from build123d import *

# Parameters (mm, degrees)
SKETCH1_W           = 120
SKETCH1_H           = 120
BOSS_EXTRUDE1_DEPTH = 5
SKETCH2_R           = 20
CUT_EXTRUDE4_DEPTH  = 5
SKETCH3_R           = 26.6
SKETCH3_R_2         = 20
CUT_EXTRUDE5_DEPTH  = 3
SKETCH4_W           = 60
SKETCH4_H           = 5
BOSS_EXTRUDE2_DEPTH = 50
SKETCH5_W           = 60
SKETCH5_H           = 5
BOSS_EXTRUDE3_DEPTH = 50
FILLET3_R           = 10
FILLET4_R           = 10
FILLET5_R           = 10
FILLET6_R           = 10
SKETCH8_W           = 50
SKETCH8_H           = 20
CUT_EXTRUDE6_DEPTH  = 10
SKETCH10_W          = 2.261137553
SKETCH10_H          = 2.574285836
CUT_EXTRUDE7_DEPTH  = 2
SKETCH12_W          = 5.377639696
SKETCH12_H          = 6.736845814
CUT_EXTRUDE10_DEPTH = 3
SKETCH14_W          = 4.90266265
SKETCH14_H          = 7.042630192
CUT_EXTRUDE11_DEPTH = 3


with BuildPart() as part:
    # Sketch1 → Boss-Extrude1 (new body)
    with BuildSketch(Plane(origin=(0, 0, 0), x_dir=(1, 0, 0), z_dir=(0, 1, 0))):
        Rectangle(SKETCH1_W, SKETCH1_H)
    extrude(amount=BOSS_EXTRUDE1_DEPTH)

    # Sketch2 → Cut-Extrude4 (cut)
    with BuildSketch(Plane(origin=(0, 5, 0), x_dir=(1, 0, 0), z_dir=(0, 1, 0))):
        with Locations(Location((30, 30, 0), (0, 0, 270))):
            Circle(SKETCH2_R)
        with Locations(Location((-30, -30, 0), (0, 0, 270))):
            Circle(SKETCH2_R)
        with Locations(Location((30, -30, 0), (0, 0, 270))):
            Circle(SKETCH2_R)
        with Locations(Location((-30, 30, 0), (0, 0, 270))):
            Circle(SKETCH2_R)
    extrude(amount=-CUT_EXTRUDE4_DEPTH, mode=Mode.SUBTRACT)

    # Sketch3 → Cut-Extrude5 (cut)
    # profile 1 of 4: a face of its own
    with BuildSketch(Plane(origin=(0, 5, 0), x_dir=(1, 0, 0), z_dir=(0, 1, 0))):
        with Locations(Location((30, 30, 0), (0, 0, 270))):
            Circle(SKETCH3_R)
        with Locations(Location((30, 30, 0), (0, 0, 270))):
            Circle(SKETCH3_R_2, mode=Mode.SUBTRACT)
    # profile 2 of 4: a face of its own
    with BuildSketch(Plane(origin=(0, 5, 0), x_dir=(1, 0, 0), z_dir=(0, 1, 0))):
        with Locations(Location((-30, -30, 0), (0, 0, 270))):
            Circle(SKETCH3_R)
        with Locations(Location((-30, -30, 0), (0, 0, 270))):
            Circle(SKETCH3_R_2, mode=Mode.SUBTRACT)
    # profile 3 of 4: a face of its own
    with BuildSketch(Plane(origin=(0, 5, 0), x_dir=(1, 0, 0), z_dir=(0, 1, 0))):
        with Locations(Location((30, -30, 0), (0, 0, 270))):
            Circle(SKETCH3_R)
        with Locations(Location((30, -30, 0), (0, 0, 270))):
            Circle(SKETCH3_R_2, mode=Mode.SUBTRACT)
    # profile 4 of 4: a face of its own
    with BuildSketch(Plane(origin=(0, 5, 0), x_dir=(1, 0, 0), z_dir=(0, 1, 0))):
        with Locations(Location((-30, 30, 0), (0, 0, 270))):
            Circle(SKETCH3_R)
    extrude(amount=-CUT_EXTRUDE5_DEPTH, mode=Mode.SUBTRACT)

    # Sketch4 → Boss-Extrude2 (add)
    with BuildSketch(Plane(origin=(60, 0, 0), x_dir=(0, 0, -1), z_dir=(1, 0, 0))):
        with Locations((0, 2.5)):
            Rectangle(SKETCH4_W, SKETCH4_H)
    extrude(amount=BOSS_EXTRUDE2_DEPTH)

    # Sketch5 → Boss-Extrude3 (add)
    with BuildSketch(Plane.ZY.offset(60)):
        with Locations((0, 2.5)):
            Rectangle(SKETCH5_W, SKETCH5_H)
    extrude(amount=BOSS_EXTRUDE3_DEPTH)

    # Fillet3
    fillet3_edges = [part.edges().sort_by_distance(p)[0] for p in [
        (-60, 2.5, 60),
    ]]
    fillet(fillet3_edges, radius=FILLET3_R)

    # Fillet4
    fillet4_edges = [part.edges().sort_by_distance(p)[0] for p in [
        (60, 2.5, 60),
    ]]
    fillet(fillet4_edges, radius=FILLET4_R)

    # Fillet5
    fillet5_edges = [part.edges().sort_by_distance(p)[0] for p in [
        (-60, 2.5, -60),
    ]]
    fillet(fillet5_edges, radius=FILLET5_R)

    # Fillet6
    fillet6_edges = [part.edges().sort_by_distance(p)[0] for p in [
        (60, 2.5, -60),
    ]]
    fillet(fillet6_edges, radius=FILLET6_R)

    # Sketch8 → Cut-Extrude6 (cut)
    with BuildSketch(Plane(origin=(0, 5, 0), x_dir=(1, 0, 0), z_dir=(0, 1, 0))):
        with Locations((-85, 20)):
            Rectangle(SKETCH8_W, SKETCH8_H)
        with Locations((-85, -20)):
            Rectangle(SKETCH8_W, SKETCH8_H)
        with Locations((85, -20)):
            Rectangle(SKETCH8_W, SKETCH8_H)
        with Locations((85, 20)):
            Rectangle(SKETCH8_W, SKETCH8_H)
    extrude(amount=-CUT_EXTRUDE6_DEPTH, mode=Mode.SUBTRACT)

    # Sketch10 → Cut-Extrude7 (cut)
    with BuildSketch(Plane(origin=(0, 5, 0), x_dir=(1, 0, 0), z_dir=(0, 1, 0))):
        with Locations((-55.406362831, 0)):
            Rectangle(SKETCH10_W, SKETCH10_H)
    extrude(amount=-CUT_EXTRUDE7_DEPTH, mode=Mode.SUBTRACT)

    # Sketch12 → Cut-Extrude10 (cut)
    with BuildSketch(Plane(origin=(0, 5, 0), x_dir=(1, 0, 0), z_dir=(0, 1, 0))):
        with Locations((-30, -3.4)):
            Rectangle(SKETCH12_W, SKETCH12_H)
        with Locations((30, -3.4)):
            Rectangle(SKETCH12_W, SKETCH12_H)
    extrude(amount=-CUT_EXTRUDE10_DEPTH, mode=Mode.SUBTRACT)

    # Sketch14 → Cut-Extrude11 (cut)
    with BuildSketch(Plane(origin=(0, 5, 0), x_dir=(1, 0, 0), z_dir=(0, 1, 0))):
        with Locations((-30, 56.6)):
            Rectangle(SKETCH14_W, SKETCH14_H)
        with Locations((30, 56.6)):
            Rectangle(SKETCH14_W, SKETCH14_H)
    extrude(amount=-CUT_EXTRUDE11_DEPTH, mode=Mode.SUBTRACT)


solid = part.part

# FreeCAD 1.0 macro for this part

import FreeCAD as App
import Part
import Sketcher


def edges_at(feature, points):
    """Names of the edges that pass closest to the given points."""
    edges = feature.Shape.Edges
    near = lambda p: min(range(len(edges)), key=lambda i: edges[i].distToShape(Part.Vertex(*p))[0])
    return sorted({f"Edge{near(p) + 1}" for p in points})

doc = App.newDocument("Part")
body = doc.addObject("PartDesign::Body", "Body")

sketch1 = body.newObject("Sketcher::SketchObject", "Sketch")
sketch1.AttachmentSupport = (doc.getObject("XZ_Plane"), [""])
sketch1.MapMode = "FlatFace"
sketch1.addGeometry([
    Part.LineSegment(App.Vector(-60, -60, 0), App.Vector(-60, 60, 0)),
    Part.LineSegment(App.Vector(-60, 60, 0), App.Vector(60, 60, 0)),
    Part.LineSegment(App.Vector(60, 60, 0), App.Vector(60, -60, 0)),
    Part.LineSegment(App.Vector(60, -60, 0), App.Vector(-60, -60, 0)),
], False)
sketch1.addConstraint([
    Sketcher.Constraint("Coincident", 0, 2, 1, 1),
    Sketcher.Constraint("Coincident", 1, 2, 2, 1),
    Sketcher.Constraint("Coincident", 2, 2, 3, 1),
    Sketcher.Constraint("Coincident", 3, 2, 0, 1),
    Sketcher.Constraint("Vertical", 0),
    Sketcher.Constraint("Horizontal", 1),
    Sketcher.Constraint("Vertical", 2),
    Sketcher.Constraint("Horizontal", 3),
    Sketcher.Constraint("Symmetric", 0, 2, 2, 2, -1, 1),
    Sketcher.Constraint("Equal", 3, 0),
    Sketcher.Constraint("DistanceX", 1, 1, 1, 2, 120.0),
])
pad1 = body.newObject("PartDesign::Pad", "Pad")
pad1.Profile = sketch1
pad1.Length = 5
pad1.Reversed = True

sketch2 = body.newObject("Sketcher::SketchObject", "Sketch001")
sketch2.AttachmentSupport = (doc.getObject("XZ_Plane"), [""])
sketch2.MapMode = "FlatFace"
sketch2.AttachmentOffset = App.Placement(App.Vector(0, 0, -5), App.Rotation())
sketch2.addGeometry([
    Part.Circle(App.Vector(30, -30, 0), App.Vector(0, 0, 1), 20),
    Part.Circle(App.Vector(-30, 30, 0), App.Vector(0, 0, 1), 20),
    Part.Circle(App.Vector(30, 30, 0), App.Vector(0, 0, 1), 20),
    Part.Circle(App.Vector(-30, -30, 0), App.Vector(0, 0, 1), 20),
], False)
sketch2.addConstraint([
    Sketcher.Constraint("Equal", 0, 1),
    Sketcher.Constraint("Equal", 1, 2),
    Sketcher.Constraint("Equal", 2, 3),
    Sketcher.Constraint("Symmetric", 0, 3, 1, 3, -1, 1),
    Sketcher.Constraint("Symmetric", 2, 3, 3, 3, -1, 1),
    Sketcher.Constraint("Symmetric", 1, 3, 2, 3, -2),
    Sketcher.Constraint("Diameter", 0, 40.0),
    Sketcher.Constraint("DistanceX", -1, 1, 0, 3, 30.0),
    Sketcher.Constraint("DistanceY", 0, 3, -1, 1, 30.0),
])
pocket1 = body.newObject("PartDesign::Pocket", "Pocket")
pocket1.Profile = sketch2
pocket1.Length = 5
pocket1.Reversed = True

sketch3 = body.newObject("Sketcher::SketchObject", "Sketch002")
sketch3.AttachmentSupport = (doc.getObject("XZ_Plane"), [""])
sketch3.MapMode = "FlatFace"
sketch3.AttachmentOffset = App.Placement(App.Vector(0, 0, -5), App.Rotation())
sketch3.addGeometry([
    Part.Circle(App.Vector(30, -30, 0), App.Vector(0, 0, 1), 27),
    Part.Circle(App.Vector(30, -30, 0), App.Vector(0, 0, 1), 20),
    Part.Circle(App.Vector(-30, 30, 0), App.Vector(0, 0, 1), 27),
    Part.Circle(App.Vector(-30, 30, 0), App.Vector(0, 0, 1), 20),
    Part.Circle(App.Vector(30, 30, 0), App.Vector(0, 0, 1), 27),
    Part.Circle(App.Vector(30, 30, 0), App.Vector(0, 0, 1), 20),
    Part.Circle(App.Vector(-30, -30, 0), App.Vector(0, 0, 1), 27),
], False)
sketch3.addConstraint([
    Sketcher.Constraint("Coincident", 1, 3, 0, 3),
    Sketcher.Constraint("Coincident", 3, 3, 2, 3),
    Sketcher.Constraint("Coincident", 5, 3, 4, 3),
    Sketcher.Constraint("Equal", 0, 2),
    Sketcher.Constraint("Equal", 1, 3),
    Sketcher.Constraint("Equal", 2, 4),
    Sketcher.Constraint("Equal", 3, 5),
    Sketcher.Constraint("Equal", 4, 6),
    Sketcher.Constraint("Symmetric", 0, 3, 2, 3, -1, 1),
    Sketcher.Constraint("Symmetric", 4, 3, 6, 3, -1, 1),
    Sketcher.Constraint("Symmetric", 2, 3, 4, 3, -2),
    Sketcher.Constraint("Diameter", 1, 40.0),
    Sketcher.Constraint("Diameter", 0, 53.2),
    Sketcher.Constraint("DistanceX", -1, 1, 0, 3, 30.0),
    Sketcher.Constraint("DistanceY", 0, 3, -1, 1, 30.0),
])
pocket2 = body.newObject("PartDesign::Pocket", "Pocket001")
pocket2.Profile = sketch3
pocket2.Length = 3
pocket2.Reversed = True

sketch4 = body.newObject("Sketcher::SketchObject", "Sketch003")
sketch4.AttachmentSupport = (doc.getObject("YZ_Plane"), [""])
sketch4.MapMode = "FlatFace"
sketch4.AttachmentOffset = App.Placement(App.Vector(0, 0, 60), App.Rotation())
sketch4.addGeometry([
    Part.LineSegment(App.Vector(5, 30, 0), App.Vector(0, 30, 0)),
    Part.LineSegment(App.Vector(0, 30, 0), App.Vector(0, -30, 0)),
    Part.LineSegment(App.Vector(0, -30, 0), App.Vector(5, -30, 0)),
    Part.LineSegment(App.Vector(5, -30, 0), App.Vector(5, 30, 0)),
], False)
sketch4.addConstraint([
    Sketcher.Constraint("Coincident", 0, 2, 1, 1),
    Sketcher.Constraint("Coincident", 1, 2, 2, 1),
    Sketcher.Constraint("Coincident", 2, 2, 3, 1),
    Sketcher.Constraint("Coincident", 3, 2, 0, 1),
    Sketcher.Constraint("Horizontal", 0),
    Sketcher.Constraint("Vertical", 1),
    Sketcher.Constraint("Horizontal", 2),
    Sketcher.Constraint("Vertical", 3),
    Sketcher.Constraint("Symmetric", 0, 2, 1, 2, -1, 1),
    Sketcher.Constraint("DistanceX", 0, 2, 0, 1, 5.0),
    Sketcher.Constraint("DistanceY", 1, 2, 1, 1, 60.0),
])
pad2 = body.newObject("PartDesign::Pad", "Pad001")
pad2.Profile = sketch4
pad2.Length = 50

sketch5 = body.newObject("Sketcher::SketchObject", "Sketch004")
sketch5.AttachmentSupport = (doc.getObject("YZ_Plane"), [""])
sketch5.MapMode = "FlatFace"
sketch5.AttachmentOffset = App.Placement(App.Vector(0, 0, -60), App.Rotation())
sketch5.addGeometry([
    Part.LineSegment(App.Vector(5, -30, 0), App.Vector(0, -30, 0)),
    Part.LineSegment(App.Vector(0, -30, 0), App.Vector(0, 30, 0)),
    Part.LineSegment(App.Vector(0, 30, 0), App.Vector(5, 30, 0)),
    Part.LineSegment(App.Vector(5, 30, 0), App.Vector(5, -30, 0)),
], False)
sketch5.addConstraint([
    Sketcher.Constraint("Coincident", 0, 2, 1, 1),
    Sketcher.Constraint("Coincident", 1, 2, 2, 1),
    Sketcher.Constraint("Coincident", 2, 2, 3, 1),
    Sketcher.Constraint("Coincident", 3, 2, 0, 1),
    Sketcher.Constraint("Horizontal", 0),
    Sketcher.Constraint("Vertical", 1),
    Sketcher.Constraint("Horizontal", 2),
    Sketcher.Constraint("Vertical", 3),
    Sketcher.Constraint("Symmetric", 0, 2, 1, 2, -1, 1),
    Sketcher.Constraint("DistanceX", 0, 2, 0, 1, 5.0),
    Sketcher.Constraint("DistanceY", 1, 1, 1, 2, 60.0),
])
pad3 = body.newObject("PartDesign::Pad", "Pad002")
pad3.Profile = sketch5
pad3.Length = 50
pad3.Reversed = True
doc.recompute()

fillet = body.newObject("PartDesign::Fillet", "Fillet")
fillet.Base = (pad3, edges_at(pad3, [(-60, 2.5, 60)]))
fillet.Radius = 10
doc.recompute()

fillet2 = body.newObject("PartDesign::Fillet", "Fillet001")
fillet2.Base = (fillet, edges_at(fillet, [(60, 2.5, 60)]))
fillet2.Radius = 10
doc.recompute()

fillet3 = body.newObject("PartDesign::Fillet", "Fillet002")
fillet3.Base = (fillet2, edges_at(fillet2, [(-60, 2.5, -60)]))
fillet3.Radius = 10
doc.recompute()

fillet4 = body.newObject("PartDesign::Fillet", "Fillet003")
fillet4.Base = (fillet3, edges_at(fillet3, [(60, 2.5, -60)]))
fillet4.Radius = 10

sketch6 = body.newObject("Sketcher::SketchObject", "Sketch005")
sketch6.AttachmentSupport = (doc.getObject("XZ_Plane"), [""])
sketch6.MapMode = "FlatFace"
sketch6.AttachmentOffset = App.Placement(App.Vector(0, 0, -5), App.Rotation())
sketch6.addGeometry([
    Part.LineSegment(App.Vector(-110, -30, 0), App.Vector(-110, -10, 0)),
    Part.LineSegment(App.Vector(-110, -10, 0), App.Vector(-60, -10, 0)),
    Part.LineSegment(App.Vector(-60, -10, 0), App.Vector(-60, -30, 0)),
    Part.LineSegment(App.Vector(-60, -30, 0), App.Vector(-110, -30, 0)),
    Part.LineSegment(App.Vector(-110, 10, 0), App.Vector(-110, 30, 0)),
    Part.LineSegment(App.Vector(-110, 30, 0), App.Vector(-60, 30, 0)),
    Part.LineSegment(App.Vector(-60, 30, 0), App.Vector(-60, 10, 0)),
    Part.LineSegment(App.Vector(-60, 10, 0), App.Vector(-110, 10, 0)),
    Part.LineSegment(App.Vector(60, 10, 0), App.Vector(60, 30, 0)),
    Part.LineSegment(App.Vector(60, 30, 0), App.Vector(110, 30, 0)),
    Part.LineSegment(App.Vector(110, 30, 0), App.Vector(110, 10, 0)),
    Part.LineSegment(App.Vector(110, 10, 0), App.Vector(60, 10, 0)),
    Part.LineSegment(App.Vector(60, -30, 0), App.Vector(60, -10, 0)),
    Part.LineSegment(App.Vector(60, -10, 0), App.Vector(110, -10, 0)),
    Part.LineSegment(App.Vector(110, -10, 0), App.Vector(110, -30, 0)),
    Part.LineSegment(App.Vector(110, -30, 0), App.Vector(60, -30, 0)),
], False)
sketch6.addConstraint([
    Sketcher.Constraint("Coincident", 0, 2, 1, 1),
    Sketcher.Constraint("Coincident", 1, 2, 2, 1),
    Sketcher.Constraint("Coincident", 2, 2, 3, 1),
    Sketcher.Constraint("Coincident", 3, 2, 0, 1),
    Sketcher.Constraint("Coincident", 4, 2, 5, 1),
    Sketcher.Constraint("Coincident", 5, 2, 6, 1),
    Sketcher.Constraint("Coincident", 6, 2, 7, 1),
    Sketcher.Constraint("Coincident", 7, 2, 4, 1),
    Sketcher.Constraint("Coincident", 8, 2, 9, 1),
    Sketcher.Constraint("Coincident", 9, 2, 10, 1),
    Sketcher.Constraint("Coincident", 10, 2, 11, 1),
    Sketcher.Constraint("Coincident", 11, 2, 8, 1),
    Sketcher.Constraint("Coincident", 12, 2, 13, 1),
    Sketcher.Constraint("Coincident", 13, 2, 14, 1),
    Sketcher.Constraint("Coincident", 14, 2, 15, 1),
    Sketcher.Constraint("Coincident", 15, 2, 12, 1),
    Sketcher.Constraint("Vertical", 0),
    Sketcher.Constraint("Horizontal", 1),
    Sketcher.Constraint("Vertical", 2),
    Sketcher.Constraint("Horizontal", 3),
    Sketcher.Constraint("Vertical", 4),
    Sketcher.Constraint("Horizontal", 5),
    Sketcher.Constraint("Vertical", 6),
    Sketcher.Constraint("Horizontal", 7),
    Sketcher.Constraint("Vertical", 8),
    Sketcher.Constraint("Horizontal", 9),
    Sketcher.Constraint("Vertical", 10),
    Sketcher.Constraint("Horizontal", 11),
    Sketcher.Constraint("Vertical", 12),
    Sketcher.Constraint("Horizontal", 13),
    Sketcher.Constraint("Vertical", 14),
    Sketcher.Constraint("Horizontal", 15),
    Sketcher.Constraint("Symmetric", 2, 2, 8, 2, -1, 1),
    Sketcher.Constraint("Symmetric", 0, 2, 10, 2, -1, 1),
    Sketcher.Constraint("Symmetric", 6, 2, 12, 2, -1, 1),
    Sketcher.Constraint("Symmetric", 4, 2, 14, 2, -1, 1),
    Sketcher.Constraint("Symmetric", 5, 2, 8, 2, -2),
    Sketcher.Constraint("Symmetric", 7, 2, 10, 2, -2),
    Sketcher.Constraint("DistanceX", 1, 1, 1, 2, 50.0),
    Sketcher.Constraint("DistanceY", 0, 1, 0, 2, 20.0),
    Sketcher.Constraint("DistanceX", 0, 2, -1, 1, 110.0),
    Sketcher.Constraint("DistanceY", 0, 2, -1, 1, 10.0),
])
pocket3 = body.newObject("PartDesign::Pocket", "Pocket002")
pocket3.Profile = sketch6
pocket3.Length = 10
pocket3.Reversed = True

sketch7 = body.newObject("Sketcher::SketchObject", "Sketch006")
sketch7.AttachmentSupport = (doc.getObject("XZ_Plane"), [""])
sketch7.MapMode = "FlatFace"
sketch7.AttachmentOffset = App.Placement(App.Vector(0, 0, -5), App.Rotation())
sketch7.addGeometry([
    Part.LineSegment(App.Vector(-56.5, -1.3, 0), App.Vector(-56.5, 1.3, 0)),
    Part.LineSegment(App.Vector(-56.5, 1.3, 0), App.Vector(-54.3, 1.3, 0)),
    Part.LineSegment(App.Vector(-54.3, 1.3, 0), App.Vector(-54.3, -1.3, 0)),
    Part.LineSegment(App.Vector(-54.3, -1.3, 0), App.Vector(-56.5, -1.3, 0)),
], False)
sketch7.addConstraint([
    Sketcher.Constraint("Coincident", 0, 2, 1, 1),
    Sketcher.Constraint("Coincident", 1, 2, 2, 1),
    Sketcher.Constraint("Coincident", 2, 2, 3, 1),
    Sketcher.Constraint("Coincident", 3, 2, 0, 1),
    Sketcher.Constraint("Vertical", 0),
    Sketcher.Constraint("Horizontal", 1),
    Sketcher.Constraint("Vertical", 2),
    Sketcher.Constraint("Horizontal", 3),
    Sketcher.Constraint("DistanceX", 1, 1, 1, 2, 2.261138),
    Sketcher.Constraint("DistanceY", 0, 1, 0, 2, 2.574286),
    Sketcher.Constraint("DistanceX", 0, 2, -1, 1, 56.536932),
    Sketcher.Constraint("DistanceY", -1, 1, 0, 2, 1.287143),
])
pocket4 = body.newObject("PartDesign::Pocket", "Pocket003")
pocket4.Profile = sketch7
pocket4.Length = 2
pocket4.Reversed = True

sketch8 = body.newObject("Sketcher::SketchObject", "Sketch007")
sketch8.AttachmentSupport = (doc.getObject("XZ_Plane"), [""])
sketch8.MapMode = "FlatFace"
sketch8.AttachmentOffset = App.Placement(App.Vector(0, 0, -5), App.Rotation())
sketch8.addGeometry([
    Part.LineSegment(App.Vector(-33, 0, 0), App.Vector(-33, 7, 0)),
    Part.LineSegment(App.Vector(-33, 7, 0), App.Vector(-27, 7, 0)),
    Part.LineSegment(App.Vector(-27, 7, 0), App.Vector(-27, 0, 0)),
    Part.LineSegment(App.Vector(-27, 0, 0), App.Vector(-33, 0, 0)),
    Part.LineSegment(App.Vector(27, 0, 0), App.Vector(27, 7, 0)),
    Part.LineSegment(App.Vector(27, 7, 0), App.Vector(33, 7, 0)),
    Part.LineSegment(App.Vector(33, 7, 0), App.Vector(33, 0, 0)),
    Part.LineSegment(App.Vector(33, 0, 0), App.Vector(27, 0, 0)),
], False)
sketch8.addConstraint([
    Sketcher.Constraint("Coincident", 0, 2, 1, 1),
    Sketcher.Constraint("Coincident", 1, 2, 2, 1),
    Sketcher.Constraint("Coincident", 2, 2, 3, 1),
    Sketcher.Constraint("Coincident", 3, 2, 0, 1),
    Sketcher.Constraint("Coincident", 4, 2, 5, 1),
    Sketcher.Constraint("Coincident", 5, 2, 6, 1),
    Sketcher.Constraint("Coincident", 6, 2, 7, 1),
    Sketcher.Constraint("Coincident", 7, 2, 4, 1),
    Sketcher.Constraint("Vertical", 0),
    Sketcher.Constraint("Horizontal", 1),
    Sketcher.Constraint("Vertical", 2),
    Sketcher.Constraint("Horizontal", 3),
    Sketcher.Constraint("Vertical", 4),
    Sketcher.Constraint("Horizontal", 5),
    Sketcher.Constraint("Vertical", 6),
    Sketcher.Constraint("Horizontal", 7),
    Sketcher.Constraint("Symmetric", 1, 2, 4, 2, -2),
    Sketcher.Constraint("Symmetric", 3, 2, 6, 2, -2),
    Sketcher.Constraint("DistanceX", 0, 2, 4, 2, 60.0),
    Sketcher.Constraint("DistanceX", 1, 1, 1, 2, 5.37764),
    Sketcher.Constraint("DistanceY", 0, 1, 0, 2, 6.736846),
    Sketcher.Constraint("DistanceY", -1, 1, 0, 2, 6.768423),
])
pocket5 = body.newObject("PartDesign::Pocket", "Pocket004")
pocket5.Profile = sketch8
pocket5.Length = 3
pocket5.Reversed = True

sketch9 = body.newObject("Sketcher::SketchObject", "Sketch008")
sketch9.AttachmentSupport = (doc.getObject("XZ_Plane"), [""])
sketch9.MapMode = "FlatFace"
sketch9.AttachmentOffset = App.Placement(App.Vector(0, 0, -5), App.Rotation())
sketch9.addGeometry([
    Part.LineSegment(App.Vector(-32.5, -60.1, 0), App.Vector(-32.5, -53.1, 0)),
    Part.LineSegment(App.Vector(-32.5, -53.1, 0), App.Vector(-27.5, -53.1, 0)),
    Part.LineSegment(App.Vector(-27.5, -53.1, 0), App.Vector(-27.5, -60.1, 0)),
    Part.LineSegment(App.Vector(-27.5, -60.1, 0), App.Vector(-32.5, -60.1, 0)),
    Part.LineSegment(App.Vector(27.5, -60.1, 0), App.Vector(27.5, -53.1, 0)),
    Part.LineSegment(App.Vector(27.5, -53.1, 0), App.Vector(32.5, -53.1, 0)),
    Part.LineSegment(App.Vector(32.5, -53.1, 0), App.Vector(32.5, -60.1, 0)),
    Part.LineSegment(App.Vector(32.5, -60.1, 0), App.Vector(27.5, -60.1, 0)),
], False)
sketch9.addConstraint([
    Sketcher.Constraint("Coincident", 0, 2, 1, 1),
    Sketcher.Constraint("Coincident", 1, 2, 2, 1),
    Sketcher.Constraint("Coincident", 2, 2, 3, 1),
    Sketcher.Constraint("Coincident", 3, 2, 0, 1),
    Sketcher.Constraint("Coincident", 4, 2, 5, 1),
    Sketcher.Constraint("Coincident", 5, 2, 6, 1),
    Sketcher.Constraint("Coincident", 6, 2, 7, 1),
    Sketcher.Constraint("Coincident", 7, 2, 4, 1),
    Sketcher.Constraint("Vertical", 0),
    Sketcher.Constraint("Horizontal", 1),
    Sketcher.Constraint("Vertical", 2),
    Sketcher.Constraint("Horizontal", 3),
    Sketcher.Constraint("Vertical", 4),
    Sketcher.Constraint("Horizontal", 5),
    Sketcher.Constraint("Vertical", 6),
    Sketcher.Constraint("Horizontal", 7),
    Sketcher.Constraint("Symmetric", 1, 2, 4, 2, -2),
    Sketcher.Constraint("Symmetric", 3, 2, 6, 2, -2),
    Sketcher.Constraint("DistanceX", 0, 2, 4, 2, 60.0),
    Sketcher.Constraint("DistanceY", 0, 1, 0, 2, 7.04263),
    Sketcher.Constraint("DistanceX", 1, 1, 1, 2, 4.902663),
    Sketcher.Constraint("DistanceY", 0, 2, -1, 1, 53.078685),
])
pocket6 = body.newObject("PartDesign::Pocket", "Pocket005")
pocket6.Profile = sketch9
pocket6.Length = 3
pocket6.Reversed = True

doc.recompute()
